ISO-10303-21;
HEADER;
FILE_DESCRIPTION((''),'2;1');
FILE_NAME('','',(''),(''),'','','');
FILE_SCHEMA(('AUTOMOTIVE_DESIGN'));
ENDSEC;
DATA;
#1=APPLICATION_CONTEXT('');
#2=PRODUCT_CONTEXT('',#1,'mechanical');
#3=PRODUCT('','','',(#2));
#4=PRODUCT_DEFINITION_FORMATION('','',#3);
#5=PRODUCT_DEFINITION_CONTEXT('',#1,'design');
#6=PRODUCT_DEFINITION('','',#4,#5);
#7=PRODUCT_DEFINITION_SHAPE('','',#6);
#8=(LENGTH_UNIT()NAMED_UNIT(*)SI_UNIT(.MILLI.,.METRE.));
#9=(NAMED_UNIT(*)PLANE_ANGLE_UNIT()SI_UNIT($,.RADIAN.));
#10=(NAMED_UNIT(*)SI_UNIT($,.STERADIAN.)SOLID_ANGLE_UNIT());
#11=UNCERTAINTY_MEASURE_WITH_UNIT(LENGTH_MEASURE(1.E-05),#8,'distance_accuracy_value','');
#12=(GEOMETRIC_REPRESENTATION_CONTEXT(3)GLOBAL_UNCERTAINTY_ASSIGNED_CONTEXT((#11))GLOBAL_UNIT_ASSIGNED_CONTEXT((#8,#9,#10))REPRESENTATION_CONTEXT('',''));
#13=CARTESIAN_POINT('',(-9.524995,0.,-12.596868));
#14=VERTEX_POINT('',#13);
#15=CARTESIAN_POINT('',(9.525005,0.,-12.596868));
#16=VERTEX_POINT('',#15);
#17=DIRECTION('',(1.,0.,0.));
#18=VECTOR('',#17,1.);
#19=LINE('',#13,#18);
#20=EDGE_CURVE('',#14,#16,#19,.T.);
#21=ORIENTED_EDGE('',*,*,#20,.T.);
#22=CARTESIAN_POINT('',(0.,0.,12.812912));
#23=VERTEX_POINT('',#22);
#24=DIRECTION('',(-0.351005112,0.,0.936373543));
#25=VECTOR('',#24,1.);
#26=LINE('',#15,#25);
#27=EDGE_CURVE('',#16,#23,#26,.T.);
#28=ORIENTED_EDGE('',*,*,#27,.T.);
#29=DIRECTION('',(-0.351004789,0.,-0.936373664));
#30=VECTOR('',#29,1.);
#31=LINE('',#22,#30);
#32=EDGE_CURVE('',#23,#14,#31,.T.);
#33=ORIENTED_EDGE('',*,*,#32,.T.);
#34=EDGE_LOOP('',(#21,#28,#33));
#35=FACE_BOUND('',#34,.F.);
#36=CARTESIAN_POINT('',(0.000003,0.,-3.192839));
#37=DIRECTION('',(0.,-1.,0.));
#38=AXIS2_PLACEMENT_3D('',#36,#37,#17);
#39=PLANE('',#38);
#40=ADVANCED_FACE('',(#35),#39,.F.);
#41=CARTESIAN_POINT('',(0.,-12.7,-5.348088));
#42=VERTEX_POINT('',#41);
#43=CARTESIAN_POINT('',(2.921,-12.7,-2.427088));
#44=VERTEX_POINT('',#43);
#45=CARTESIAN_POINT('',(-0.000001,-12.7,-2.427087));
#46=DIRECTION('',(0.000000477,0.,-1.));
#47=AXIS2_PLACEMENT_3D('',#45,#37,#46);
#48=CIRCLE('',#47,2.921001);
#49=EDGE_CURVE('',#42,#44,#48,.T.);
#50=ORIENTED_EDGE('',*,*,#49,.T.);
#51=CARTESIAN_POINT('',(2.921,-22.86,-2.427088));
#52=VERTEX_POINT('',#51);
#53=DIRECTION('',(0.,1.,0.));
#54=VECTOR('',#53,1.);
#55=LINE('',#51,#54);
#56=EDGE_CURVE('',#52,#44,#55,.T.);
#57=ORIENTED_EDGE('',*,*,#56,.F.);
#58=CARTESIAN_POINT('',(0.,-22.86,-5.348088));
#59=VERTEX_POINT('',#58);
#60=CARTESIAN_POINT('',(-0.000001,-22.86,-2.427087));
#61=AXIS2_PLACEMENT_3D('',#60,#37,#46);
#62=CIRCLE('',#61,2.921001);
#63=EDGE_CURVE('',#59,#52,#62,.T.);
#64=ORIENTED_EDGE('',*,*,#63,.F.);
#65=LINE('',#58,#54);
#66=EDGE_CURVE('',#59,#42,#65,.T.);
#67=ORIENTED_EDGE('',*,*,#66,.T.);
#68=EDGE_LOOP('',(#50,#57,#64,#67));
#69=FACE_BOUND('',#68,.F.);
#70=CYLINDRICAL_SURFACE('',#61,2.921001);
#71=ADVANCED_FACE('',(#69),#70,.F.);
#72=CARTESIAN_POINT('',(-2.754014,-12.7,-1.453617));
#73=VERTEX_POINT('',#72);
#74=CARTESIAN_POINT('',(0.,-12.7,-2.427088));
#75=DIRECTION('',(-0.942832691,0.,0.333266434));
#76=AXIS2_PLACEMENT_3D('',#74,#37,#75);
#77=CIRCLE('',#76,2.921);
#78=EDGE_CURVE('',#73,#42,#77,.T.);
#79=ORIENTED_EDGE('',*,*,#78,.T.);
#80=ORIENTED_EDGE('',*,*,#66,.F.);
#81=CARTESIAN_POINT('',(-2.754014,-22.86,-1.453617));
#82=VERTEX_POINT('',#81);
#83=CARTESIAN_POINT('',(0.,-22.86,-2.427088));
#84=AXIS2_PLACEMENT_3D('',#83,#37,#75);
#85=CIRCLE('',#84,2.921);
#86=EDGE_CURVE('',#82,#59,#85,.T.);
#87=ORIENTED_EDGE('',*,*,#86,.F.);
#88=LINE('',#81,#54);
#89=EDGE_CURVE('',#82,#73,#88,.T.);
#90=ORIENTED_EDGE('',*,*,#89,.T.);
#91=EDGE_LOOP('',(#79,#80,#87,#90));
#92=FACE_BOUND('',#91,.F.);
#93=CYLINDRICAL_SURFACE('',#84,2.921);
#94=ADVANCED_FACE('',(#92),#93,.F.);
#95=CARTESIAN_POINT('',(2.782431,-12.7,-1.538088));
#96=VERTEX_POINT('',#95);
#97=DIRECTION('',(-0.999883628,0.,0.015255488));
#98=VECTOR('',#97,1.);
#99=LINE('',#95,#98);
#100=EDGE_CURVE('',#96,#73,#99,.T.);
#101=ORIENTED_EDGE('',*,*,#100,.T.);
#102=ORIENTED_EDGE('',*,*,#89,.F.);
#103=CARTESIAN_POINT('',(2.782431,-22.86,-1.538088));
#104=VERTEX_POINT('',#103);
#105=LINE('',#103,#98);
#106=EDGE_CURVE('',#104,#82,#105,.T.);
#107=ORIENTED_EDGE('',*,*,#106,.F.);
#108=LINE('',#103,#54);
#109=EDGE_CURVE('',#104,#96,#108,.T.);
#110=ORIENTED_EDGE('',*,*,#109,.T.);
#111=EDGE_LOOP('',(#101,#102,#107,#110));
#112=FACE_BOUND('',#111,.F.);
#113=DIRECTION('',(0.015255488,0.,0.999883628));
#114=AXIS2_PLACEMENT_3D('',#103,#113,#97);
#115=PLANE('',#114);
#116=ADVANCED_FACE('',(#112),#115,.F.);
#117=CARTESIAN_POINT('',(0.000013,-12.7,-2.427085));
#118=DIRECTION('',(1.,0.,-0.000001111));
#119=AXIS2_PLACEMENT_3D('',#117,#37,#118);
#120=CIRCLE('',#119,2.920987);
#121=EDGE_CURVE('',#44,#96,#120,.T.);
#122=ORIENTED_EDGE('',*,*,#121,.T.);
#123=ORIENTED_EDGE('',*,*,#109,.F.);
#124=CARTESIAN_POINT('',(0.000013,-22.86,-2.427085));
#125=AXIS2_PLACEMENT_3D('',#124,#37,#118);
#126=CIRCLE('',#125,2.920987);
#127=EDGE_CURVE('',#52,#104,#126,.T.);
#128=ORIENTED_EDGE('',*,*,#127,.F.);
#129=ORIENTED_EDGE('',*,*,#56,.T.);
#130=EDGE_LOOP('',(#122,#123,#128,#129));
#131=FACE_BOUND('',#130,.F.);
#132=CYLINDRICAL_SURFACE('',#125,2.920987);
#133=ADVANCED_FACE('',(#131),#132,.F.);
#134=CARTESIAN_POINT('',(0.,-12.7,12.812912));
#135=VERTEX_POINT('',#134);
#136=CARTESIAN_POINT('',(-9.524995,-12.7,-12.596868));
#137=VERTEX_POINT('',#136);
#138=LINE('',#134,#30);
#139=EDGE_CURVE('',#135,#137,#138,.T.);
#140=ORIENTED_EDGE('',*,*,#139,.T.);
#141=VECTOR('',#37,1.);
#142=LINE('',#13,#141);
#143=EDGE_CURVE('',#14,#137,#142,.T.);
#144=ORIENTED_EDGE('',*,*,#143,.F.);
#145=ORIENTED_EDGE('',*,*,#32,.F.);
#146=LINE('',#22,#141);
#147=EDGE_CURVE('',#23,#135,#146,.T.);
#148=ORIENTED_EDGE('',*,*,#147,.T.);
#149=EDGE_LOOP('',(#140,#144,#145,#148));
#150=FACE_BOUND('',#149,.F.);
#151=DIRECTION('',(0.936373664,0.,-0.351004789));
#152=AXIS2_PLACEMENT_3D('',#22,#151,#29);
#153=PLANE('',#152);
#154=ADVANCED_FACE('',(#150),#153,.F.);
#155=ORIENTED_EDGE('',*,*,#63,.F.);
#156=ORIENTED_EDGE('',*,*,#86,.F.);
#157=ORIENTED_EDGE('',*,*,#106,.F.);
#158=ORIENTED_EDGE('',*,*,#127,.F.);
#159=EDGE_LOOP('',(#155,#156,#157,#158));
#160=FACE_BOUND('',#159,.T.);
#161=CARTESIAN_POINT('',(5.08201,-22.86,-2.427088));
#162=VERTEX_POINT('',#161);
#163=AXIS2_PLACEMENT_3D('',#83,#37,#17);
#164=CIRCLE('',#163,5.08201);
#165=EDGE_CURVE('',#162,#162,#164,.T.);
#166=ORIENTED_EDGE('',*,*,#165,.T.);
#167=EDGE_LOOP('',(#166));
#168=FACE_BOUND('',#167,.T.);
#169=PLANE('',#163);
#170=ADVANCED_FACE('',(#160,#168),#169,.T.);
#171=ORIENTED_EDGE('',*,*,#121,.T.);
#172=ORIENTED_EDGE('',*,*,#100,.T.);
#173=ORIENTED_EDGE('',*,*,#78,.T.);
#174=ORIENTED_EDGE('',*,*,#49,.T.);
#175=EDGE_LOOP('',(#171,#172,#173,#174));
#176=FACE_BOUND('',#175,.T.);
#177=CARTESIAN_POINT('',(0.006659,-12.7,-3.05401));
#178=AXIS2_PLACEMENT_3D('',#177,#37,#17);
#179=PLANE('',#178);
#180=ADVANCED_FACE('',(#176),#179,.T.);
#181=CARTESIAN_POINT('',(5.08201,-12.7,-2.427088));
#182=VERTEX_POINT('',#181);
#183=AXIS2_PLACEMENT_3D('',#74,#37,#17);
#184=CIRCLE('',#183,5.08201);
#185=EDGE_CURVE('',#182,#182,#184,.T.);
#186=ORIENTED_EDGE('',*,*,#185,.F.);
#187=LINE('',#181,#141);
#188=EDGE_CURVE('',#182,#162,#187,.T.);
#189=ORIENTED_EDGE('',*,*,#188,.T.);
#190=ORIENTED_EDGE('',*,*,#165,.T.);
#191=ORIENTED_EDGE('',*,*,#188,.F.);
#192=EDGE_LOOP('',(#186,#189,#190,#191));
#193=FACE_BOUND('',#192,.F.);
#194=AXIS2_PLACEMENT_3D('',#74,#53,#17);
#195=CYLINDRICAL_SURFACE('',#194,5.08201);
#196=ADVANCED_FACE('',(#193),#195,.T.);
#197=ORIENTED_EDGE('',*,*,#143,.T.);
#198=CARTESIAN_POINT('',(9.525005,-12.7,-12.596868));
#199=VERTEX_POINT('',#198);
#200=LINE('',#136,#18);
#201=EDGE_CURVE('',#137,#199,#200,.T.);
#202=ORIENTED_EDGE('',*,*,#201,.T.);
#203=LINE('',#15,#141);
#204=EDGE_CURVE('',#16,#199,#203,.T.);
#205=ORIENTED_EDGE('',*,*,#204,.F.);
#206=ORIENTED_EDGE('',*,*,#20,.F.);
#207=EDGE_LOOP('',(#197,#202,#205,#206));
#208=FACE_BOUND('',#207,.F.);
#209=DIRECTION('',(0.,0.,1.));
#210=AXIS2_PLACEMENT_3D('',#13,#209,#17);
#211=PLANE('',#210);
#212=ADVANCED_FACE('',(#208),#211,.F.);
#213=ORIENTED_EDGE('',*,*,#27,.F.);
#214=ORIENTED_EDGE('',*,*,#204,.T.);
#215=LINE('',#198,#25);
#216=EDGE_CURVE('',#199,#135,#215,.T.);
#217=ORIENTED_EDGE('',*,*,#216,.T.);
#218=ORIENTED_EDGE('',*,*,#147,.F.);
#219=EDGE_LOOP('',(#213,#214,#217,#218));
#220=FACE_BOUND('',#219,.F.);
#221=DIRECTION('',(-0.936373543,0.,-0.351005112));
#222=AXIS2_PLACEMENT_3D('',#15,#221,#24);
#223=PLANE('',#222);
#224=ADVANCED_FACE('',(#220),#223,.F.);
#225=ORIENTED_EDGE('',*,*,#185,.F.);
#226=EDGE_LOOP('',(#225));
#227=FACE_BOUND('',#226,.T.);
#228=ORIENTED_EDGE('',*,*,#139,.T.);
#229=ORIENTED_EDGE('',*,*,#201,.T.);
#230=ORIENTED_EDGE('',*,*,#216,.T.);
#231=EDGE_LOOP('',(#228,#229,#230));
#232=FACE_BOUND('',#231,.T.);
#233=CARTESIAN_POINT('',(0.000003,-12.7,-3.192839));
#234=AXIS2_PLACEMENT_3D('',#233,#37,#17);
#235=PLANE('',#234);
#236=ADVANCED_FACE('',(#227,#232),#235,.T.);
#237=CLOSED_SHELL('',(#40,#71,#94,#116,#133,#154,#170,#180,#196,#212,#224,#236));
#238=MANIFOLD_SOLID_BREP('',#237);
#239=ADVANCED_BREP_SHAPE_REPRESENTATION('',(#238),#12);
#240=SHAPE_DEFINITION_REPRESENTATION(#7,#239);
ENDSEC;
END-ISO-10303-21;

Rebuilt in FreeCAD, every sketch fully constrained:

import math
import FreeCAD as App
import Part
import Sketcher

V = App.Vector
Q = App.Units.Quantity

doc = App.newDocument("Part")
body = doc.addObject("PartDesign::Body", "Body")

# Sketch on XZ plane
sketch1 = body.newObject("Sketcher::SketchObject", "Sketch")
sketch1.AttachmentSupport = (doc.getObject("XZ_Plane"), [""])
sketch1.MapMode = "FlatFace"
sketch1.addGeometry([
    Part.LineSegment(V(0, 13, 0), V(-10, -13, 0)),
    Part.LineSegment(V(-10, -13, 0), V(10, -13, 0)),
    Part.LineSegment(V(10, -13, 0), V(0, 13, 0)),
], False)
sketch1.addConstraint([
    Sketcher.Constraint("Coincident", 0, 2, 1, 1),
    Sketcher.Constraint("Coincident", 1, 2, 2, 1),
    Sketcher.Constraint("Coincident", 2, 2, 0, 1),
    Sketcher.Constraint("Horizontal", 1),
    Sketcher.Constraint("PointOnObject", 2, 2, -2),
    Sketcher.Constraint("DistanceX", 1, 1, 1, 2, Q("0.75 in")),
    Sketcher.Constraint("DistanceX", 0, 2, -1, 1, Q("0.3749998 in")),
    Sketcher.Constraint("Distance", 2, 27.136371),
    Sketcher.Constraint("DistanceY", 0, 2, -1, 1, 12.596868),
])
pad1 = body.newObject("PartDesign::Pad", "Pad")
pad1.Profile = sketch1
pad1.Length = Q("0.5 in")

# Sketch on XZ plane
sketch2 = body.newObject("Sketcher::SketchObject", "Sketch001")
sketch2.AttachmentSupport = (doc.getObject("XZ_Plane"), [""])
sketch2.MapMode = "FlatFace"
sketch2.AttachmentOffset = App.Placement(V(0, 0, 0.5 * 25.4), App.Rotation())
sketch2.addGeometry(Part.Circle(V(0, -2, 0), V(0, 0, 1), 5), False)
sketch2.addConstraint([
    Sketcher.Constraint("PointOnObject", 0, 3, -2),
    Sketcher.Constraint("Diameter", 0, 10.16402),
    Sketcher.Constraint("DistanceY", 0, 3, -1, 1, 2.427088),
])
pad2 = body.newObject("PartDesign::Pad", "Pad001")
pad2.Profile = sketch2
pad2.Length = Q("0.4 in")

# Sketch on XZ plane
sketch3 = body.newObject("Sketcher::SketchObject", "Sketch002")
sketch3.AttachmentSupport = (doc.getObject("XZ_Plane"), [""])
sketch3.MapMode = "FlatFace"
sketch3.AttachmentOffset = App.Placement(V(0, 0, 0.9 * 25.4), App.Rotation())
sketch3.addGeometry([
    Part.ArcOfCircle(Part.Circle(V(0, -2.4, 0), V(0, 0, 1), 2.9), math.radians(-90), math.radians(0)),
    Part.ArcOfCircle(Part.Circle(V(0, -2.4, 0), V(0, 0, 1), 2.9), math.radians(0), math.radians(17.72)),
    Part.LineSegment(V(2.8, -1.5, 0), V(-2.8, -1.5, 0)),
    Part.ArcOfCircle(Part.Circle(V(0, -2.4, 0), V(0, 0, 1), 2.9), math.radians(161), math.radians(270)),
], False)
sketch3.addConstraint([
    Sketcher.Constraint("Tangent", 0, 2, 1, 1),
    Sketcher.Constraint("Coincident", 1, 2, 2, 1),
    Sketcher.Constraint("Coincident", 2, 2, 3, 1),
    Sketcher.Constraint("Tangent", 3, 2, 0, 1),
    Sketcher.Constraint("Equal", 0, 3),
    Sketcher.Constraint("PointOnObject", 0, 3, -2),
    Sketcher.Constraint("PointOnObject", 3, 2, -2),
    Sketcher.Constraint("Horizontal", 3, 3, 0, 2),
    Sketcher.Constraint("Radius", 0, Q("0.1150001 in")),
    Sketcher.Constraint("DistanceY", 3, 2, 1, 2, Q("0.15 in")),
    Sketcher.Constraint("Radius", 1, 2.920987),
    Sketcher.Constraint("Distance", 2, 5.537089),
    Sketcher.Constraint("DistanceY", 3, 3, -1, 1, 2.427088),
])
pocket1 = body.newObject("PartDesign::Pocket", "Pocket")
pocket1.Profile = sketch3
pocket1.Length = Q("0.4 in")

doc.recompute()
